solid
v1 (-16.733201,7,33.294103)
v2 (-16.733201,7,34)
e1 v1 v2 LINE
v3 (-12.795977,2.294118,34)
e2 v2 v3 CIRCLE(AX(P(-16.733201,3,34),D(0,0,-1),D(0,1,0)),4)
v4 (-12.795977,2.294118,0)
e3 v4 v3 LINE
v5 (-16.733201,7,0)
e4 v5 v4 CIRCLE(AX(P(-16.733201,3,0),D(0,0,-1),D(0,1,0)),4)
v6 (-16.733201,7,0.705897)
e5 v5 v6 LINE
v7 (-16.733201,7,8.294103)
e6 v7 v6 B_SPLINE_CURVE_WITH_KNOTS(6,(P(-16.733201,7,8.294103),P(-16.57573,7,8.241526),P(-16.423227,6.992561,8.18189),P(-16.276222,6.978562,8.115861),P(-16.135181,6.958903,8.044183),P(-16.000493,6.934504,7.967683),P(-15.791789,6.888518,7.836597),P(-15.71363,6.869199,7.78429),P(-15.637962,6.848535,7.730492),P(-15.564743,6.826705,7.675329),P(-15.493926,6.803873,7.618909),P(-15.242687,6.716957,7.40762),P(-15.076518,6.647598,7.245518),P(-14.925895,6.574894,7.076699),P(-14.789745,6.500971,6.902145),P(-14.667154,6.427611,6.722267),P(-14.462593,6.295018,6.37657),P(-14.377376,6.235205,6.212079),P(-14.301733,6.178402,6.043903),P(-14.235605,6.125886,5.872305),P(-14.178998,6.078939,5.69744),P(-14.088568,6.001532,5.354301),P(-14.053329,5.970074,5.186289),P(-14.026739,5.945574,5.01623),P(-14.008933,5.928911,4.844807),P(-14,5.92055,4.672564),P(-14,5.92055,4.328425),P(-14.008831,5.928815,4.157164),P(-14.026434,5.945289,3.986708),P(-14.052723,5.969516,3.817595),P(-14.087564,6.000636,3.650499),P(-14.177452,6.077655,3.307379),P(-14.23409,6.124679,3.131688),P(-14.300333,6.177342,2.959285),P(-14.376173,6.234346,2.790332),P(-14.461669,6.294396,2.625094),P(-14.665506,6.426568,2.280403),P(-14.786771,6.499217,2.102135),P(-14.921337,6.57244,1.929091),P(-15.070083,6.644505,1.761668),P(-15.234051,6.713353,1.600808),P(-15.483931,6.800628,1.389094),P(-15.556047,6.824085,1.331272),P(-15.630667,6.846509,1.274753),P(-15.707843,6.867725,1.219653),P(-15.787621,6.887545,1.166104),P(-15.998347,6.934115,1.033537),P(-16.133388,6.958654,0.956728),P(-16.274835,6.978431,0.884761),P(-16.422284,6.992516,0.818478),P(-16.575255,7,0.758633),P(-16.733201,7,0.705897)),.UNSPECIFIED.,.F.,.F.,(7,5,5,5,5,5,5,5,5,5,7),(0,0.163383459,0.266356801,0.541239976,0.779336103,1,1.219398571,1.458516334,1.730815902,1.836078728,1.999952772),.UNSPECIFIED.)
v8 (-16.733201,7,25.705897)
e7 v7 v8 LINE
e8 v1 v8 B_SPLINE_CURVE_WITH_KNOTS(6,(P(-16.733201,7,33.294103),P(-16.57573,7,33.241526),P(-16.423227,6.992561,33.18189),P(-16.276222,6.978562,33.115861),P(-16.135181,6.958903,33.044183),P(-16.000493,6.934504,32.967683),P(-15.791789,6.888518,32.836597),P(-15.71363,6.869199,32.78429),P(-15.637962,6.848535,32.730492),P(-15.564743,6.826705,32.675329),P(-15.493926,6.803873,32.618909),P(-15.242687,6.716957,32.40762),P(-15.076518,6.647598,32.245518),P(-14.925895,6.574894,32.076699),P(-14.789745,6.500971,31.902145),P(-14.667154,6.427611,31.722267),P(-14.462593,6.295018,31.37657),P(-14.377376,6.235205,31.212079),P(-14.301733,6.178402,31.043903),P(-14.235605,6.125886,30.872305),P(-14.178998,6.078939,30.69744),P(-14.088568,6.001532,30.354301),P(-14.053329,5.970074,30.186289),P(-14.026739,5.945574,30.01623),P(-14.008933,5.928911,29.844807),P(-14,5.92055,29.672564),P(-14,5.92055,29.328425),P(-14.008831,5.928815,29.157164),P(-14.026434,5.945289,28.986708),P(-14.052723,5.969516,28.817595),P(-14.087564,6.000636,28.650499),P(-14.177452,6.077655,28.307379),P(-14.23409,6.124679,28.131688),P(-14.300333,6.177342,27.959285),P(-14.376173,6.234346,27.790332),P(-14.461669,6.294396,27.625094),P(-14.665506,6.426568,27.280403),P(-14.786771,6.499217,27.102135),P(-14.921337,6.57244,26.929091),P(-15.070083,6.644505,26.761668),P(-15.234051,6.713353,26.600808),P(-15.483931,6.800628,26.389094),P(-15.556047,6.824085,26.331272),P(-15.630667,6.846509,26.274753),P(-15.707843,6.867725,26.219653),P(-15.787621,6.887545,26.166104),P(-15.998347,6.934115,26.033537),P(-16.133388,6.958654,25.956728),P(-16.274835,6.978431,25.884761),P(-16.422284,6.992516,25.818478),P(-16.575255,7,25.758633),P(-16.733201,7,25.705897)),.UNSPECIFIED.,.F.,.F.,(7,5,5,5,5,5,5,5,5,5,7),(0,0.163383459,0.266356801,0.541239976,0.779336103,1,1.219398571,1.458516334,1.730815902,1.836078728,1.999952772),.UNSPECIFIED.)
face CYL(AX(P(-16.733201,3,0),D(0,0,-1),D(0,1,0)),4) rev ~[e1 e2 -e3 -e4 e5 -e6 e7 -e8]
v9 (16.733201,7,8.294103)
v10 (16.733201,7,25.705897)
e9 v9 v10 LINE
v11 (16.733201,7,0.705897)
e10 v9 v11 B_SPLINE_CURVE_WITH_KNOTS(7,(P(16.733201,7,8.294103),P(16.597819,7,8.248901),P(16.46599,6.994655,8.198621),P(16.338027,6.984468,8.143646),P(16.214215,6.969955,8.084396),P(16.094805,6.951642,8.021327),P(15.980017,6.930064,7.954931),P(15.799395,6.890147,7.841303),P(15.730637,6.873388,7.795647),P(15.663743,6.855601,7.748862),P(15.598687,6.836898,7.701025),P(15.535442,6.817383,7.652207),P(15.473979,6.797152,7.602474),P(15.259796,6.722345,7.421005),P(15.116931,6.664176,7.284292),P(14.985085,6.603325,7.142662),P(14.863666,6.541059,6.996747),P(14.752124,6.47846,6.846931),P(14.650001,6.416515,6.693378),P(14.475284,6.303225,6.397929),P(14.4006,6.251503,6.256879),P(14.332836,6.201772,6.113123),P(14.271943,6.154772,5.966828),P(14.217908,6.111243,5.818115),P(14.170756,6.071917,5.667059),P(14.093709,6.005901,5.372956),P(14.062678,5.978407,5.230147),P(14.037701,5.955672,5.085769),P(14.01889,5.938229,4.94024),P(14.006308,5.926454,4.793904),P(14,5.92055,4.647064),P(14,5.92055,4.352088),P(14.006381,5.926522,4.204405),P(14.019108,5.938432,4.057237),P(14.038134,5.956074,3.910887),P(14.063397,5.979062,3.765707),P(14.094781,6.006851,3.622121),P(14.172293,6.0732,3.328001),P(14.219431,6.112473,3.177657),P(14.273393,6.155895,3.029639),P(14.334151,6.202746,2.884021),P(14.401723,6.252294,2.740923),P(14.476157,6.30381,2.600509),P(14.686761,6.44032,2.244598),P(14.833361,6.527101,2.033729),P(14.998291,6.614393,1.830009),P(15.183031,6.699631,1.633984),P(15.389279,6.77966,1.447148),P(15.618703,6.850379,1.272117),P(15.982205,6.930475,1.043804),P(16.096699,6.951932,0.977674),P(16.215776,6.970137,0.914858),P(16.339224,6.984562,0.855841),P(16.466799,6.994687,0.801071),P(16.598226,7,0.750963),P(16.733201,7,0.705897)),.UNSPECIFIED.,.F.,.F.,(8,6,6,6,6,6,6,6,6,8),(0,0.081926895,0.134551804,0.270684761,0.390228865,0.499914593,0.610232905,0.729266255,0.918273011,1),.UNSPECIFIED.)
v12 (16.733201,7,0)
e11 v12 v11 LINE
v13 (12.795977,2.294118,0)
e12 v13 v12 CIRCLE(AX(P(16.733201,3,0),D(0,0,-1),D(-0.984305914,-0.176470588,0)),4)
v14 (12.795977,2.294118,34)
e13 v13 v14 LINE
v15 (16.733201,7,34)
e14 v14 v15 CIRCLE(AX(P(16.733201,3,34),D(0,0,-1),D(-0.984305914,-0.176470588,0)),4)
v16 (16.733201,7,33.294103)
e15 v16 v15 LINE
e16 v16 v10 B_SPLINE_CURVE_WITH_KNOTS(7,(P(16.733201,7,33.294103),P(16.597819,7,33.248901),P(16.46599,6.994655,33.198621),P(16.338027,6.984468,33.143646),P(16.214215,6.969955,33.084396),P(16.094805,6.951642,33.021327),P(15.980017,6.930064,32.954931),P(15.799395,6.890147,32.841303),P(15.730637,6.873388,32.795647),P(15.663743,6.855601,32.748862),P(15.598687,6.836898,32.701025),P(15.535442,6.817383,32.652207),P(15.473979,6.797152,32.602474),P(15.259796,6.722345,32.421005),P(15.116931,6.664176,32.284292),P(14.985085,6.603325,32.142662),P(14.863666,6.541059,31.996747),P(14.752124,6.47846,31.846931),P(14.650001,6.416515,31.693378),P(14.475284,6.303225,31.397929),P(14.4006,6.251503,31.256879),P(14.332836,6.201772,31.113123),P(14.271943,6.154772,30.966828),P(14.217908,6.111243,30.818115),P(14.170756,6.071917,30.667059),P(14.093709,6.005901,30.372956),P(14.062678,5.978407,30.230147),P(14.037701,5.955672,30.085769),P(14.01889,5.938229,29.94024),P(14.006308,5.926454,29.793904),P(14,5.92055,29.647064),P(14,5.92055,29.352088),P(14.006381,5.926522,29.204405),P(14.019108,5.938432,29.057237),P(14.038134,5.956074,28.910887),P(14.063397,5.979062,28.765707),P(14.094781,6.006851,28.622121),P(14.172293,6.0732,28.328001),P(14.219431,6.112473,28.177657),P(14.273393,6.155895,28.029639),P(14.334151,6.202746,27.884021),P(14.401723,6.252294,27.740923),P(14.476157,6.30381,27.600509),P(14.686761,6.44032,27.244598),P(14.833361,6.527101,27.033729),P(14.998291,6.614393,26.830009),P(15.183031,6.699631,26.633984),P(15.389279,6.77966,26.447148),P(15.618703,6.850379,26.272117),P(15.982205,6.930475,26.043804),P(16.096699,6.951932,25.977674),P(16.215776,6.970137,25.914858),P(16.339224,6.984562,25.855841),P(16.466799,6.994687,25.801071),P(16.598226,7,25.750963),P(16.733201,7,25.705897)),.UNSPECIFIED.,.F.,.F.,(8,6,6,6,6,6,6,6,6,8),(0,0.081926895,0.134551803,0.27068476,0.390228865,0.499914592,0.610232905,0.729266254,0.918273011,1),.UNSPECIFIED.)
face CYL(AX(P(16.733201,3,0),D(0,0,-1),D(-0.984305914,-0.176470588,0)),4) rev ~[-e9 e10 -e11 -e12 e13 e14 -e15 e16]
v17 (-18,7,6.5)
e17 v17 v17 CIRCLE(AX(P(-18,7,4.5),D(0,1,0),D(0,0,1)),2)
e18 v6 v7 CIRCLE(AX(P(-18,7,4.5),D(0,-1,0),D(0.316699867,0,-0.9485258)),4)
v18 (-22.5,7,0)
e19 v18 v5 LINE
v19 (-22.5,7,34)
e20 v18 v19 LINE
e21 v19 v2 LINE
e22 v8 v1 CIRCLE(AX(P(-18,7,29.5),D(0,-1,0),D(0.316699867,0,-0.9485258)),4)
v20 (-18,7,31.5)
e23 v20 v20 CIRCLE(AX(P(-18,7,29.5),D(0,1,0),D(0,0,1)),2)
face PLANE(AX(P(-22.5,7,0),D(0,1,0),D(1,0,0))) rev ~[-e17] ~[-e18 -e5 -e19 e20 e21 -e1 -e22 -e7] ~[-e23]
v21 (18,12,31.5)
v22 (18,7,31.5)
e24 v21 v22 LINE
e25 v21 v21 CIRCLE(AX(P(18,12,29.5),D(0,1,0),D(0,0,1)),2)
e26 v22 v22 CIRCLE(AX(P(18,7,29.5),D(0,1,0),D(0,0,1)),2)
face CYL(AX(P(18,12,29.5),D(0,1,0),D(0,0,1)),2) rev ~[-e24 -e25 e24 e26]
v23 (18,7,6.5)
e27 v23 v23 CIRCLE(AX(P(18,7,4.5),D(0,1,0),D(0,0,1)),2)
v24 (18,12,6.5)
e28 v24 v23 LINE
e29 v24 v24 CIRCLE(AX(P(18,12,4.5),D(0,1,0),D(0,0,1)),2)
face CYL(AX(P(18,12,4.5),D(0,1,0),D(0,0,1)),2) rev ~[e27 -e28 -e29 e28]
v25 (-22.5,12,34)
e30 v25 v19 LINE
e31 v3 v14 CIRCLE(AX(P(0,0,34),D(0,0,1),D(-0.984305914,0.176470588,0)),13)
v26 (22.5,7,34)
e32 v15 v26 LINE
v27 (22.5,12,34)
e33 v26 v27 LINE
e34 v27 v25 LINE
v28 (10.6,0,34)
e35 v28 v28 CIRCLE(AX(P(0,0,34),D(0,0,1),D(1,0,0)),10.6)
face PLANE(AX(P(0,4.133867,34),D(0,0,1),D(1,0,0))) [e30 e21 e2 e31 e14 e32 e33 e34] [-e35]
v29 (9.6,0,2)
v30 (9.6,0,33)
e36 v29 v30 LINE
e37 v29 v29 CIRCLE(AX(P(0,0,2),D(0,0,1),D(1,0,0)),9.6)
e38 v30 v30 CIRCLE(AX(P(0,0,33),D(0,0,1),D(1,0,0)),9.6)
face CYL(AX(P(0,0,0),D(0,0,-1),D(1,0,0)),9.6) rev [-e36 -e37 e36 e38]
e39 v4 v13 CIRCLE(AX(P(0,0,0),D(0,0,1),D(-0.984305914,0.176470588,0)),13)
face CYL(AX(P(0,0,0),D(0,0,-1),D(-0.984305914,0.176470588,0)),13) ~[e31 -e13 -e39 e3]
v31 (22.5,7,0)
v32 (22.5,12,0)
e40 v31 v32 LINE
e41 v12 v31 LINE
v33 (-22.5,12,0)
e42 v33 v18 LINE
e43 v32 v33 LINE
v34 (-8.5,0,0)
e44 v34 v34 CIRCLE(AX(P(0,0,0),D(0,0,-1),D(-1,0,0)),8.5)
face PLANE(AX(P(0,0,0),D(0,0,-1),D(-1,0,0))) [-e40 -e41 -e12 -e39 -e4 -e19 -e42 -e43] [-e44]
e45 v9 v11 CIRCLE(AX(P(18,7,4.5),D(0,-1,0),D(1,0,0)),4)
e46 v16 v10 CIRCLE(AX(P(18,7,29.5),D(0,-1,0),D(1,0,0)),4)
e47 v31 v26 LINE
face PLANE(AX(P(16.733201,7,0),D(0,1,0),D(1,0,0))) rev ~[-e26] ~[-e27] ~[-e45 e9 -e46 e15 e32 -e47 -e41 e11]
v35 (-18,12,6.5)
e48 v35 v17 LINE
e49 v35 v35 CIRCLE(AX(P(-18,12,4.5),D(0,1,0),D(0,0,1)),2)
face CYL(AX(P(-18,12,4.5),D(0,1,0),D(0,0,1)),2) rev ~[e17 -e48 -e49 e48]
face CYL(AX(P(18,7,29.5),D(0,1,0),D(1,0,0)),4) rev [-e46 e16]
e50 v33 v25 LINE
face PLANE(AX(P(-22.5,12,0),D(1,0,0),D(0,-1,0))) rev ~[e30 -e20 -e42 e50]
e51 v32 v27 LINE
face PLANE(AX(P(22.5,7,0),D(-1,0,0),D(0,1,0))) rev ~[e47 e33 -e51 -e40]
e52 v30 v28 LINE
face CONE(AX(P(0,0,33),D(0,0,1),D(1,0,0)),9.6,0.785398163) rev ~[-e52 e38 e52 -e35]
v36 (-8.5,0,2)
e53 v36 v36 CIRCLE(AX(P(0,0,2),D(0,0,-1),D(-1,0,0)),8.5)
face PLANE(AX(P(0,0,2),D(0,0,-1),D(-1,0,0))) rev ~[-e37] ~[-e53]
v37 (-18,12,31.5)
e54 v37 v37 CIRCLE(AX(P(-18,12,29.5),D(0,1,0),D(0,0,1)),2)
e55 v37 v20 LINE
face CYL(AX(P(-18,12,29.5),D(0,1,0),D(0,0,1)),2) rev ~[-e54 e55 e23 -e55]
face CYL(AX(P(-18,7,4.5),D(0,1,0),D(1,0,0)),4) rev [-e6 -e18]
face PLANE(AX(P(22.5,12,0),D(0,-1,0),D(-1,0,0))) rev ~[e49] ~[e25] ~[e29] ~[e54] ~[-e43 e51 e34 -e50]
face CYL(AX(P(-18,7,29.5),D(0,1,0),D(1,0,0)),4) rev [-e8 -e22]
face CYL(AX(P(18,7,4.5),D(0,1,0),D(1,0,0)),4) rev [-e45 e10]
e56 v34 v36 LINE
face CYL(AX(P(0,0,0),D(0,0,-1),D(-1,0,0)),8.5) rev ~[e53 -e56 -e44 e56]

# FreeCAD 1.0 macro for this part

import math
import FreeCAD as App
import Part
import Sketcher
from FreeCAD import Vector


def edges_at(feature, points):
    """Names of the edges that pass closest to the given points."""
    edges = feature.Shape.Edges
    near = lambda p: min(range(len(edges)), key=lambda i: edges[i].distToShape(Part.Vertex(*p))[0])
    return sorted({f"Edge{near(p) + 1}" for p in points})

doc = App.newDocument("Part")
params = doc.addObject("Spreadsheet::Sheet", "Params")
for row, (alias, value) in enumerate([
    ("sketch1_radius", "4 mm"),
    ("sketch1_radius2", "13 mm"),
    ("sketch1_diameter", "19.2 mm"),
    ("sketch1_width", "45 mm"),
    ("sketch1_height", "5 mm"),
    ("pad1_length", "34 mm"),
    ("sketch2_diameter", "4 mm"),
    ("pocket1_length", "34 mm"),
    ("sketch3_diameter", "8 mm"),
    ("pocket2_length", "34 mm"),
    ("sketch4_diameter", "17 mm"),
    ("sketch4_diameter2", "19.2 mm"),
    ("pad2_length", "2 mm"),
    ("chamfer_size", "1 mm"),
], start=1):
    params.set(f"A{row}", alias)
    params.set(f"B{row}", "=" + value)
    params.setAlias(f"B{row}", alias)

body = doc.addObject("PartDesign::Body", "Body")

sketch1 = doc.addObject("Sketcher::SketchObject", "Sketch")
body.addObject(sketch1)
sketch1.AttachmentSupport = (doc.XY_Plane, [""])
sketch1.MapMode = "FlatFace"
sketch1.addGeometry([
    Part.LineSegment(Vector(16.7, 7, 0), Vector(22.5, 7, 0)),
    Part.LineSegment(Vector(22.5, 7, 0), Vector(22.5, 12, 0)),
    Part.LineSegment(Vector(22.5, 12, 0), Vector(-22.5, 12, 0)),
    Part.LineSegment(Vector(-22.5, 12, 0), Vector(-22.5, 7, 0)),
    Part.LineSegment(Vector(-22.5, 7, 0), Vector(-16.7, 7, 0)),
    Part.ArcOfCircle(Part.Circle(Vector(-16.7, 3, 0), Vector(0, 0, 1), 4), math.radians(-10), math.radians(90)),
    Part.ArcOfCircle(Part.Circle(Vector(0, 0, 0), Vector(0, 0, 1), 13), math.radians(170), math.radians(370)),
    Part.ArcOfCircle(Part.Circle(Vector(16.7, 3, 0), Vector(0, 0, 1), 4), math.radians(90), math.radians(190)),
    Part.Circle(Vector(0, 0, 0), Vector(0, 0, 1), 9.6),
], False)
sketch1.addConstraint([
    Sketcher.Constraint("Coincident", 0, 2, 1, 1),
    Sketcher.Constraint("Coincident", 1, 2, 2, 1),
    Sketcher.Constraint("Coincident", 2, 2, 3, 1),
    Sketcher.Constraint("Coincident", 3, 2, 4, 1),
    Sketcher.Constraint("Tangent", 4, 2, 5, 2),
    Sketcher.Constraint("Tangent", 5, 1, 6, 1),
    Sketcher.Constraint("Tangent", 6, 2, 7, 2),
    Sketcher.Constraint("Tangent", 7, 1, 0, 1),
    Sketcher.Constraint("Horizontal", 0),
    Sketcher.Constraint("Vertical", 1),
    Sketcher.Constraint("Horizontal", 2),
    Sketcher.Constraint("Vertical", 3),
    Sketcher.Constraint("Horizontal", 4),
    Sketcher.Constraint("Coincident", 6, 3, -1, 1),
    Sketcher.Constraint("Coincident", 8, 3, -1, 1),
    Sketcher.Constraint("Equal", 5, 7),
    Sketcher.Constraint("Symmetric", 0, 2, 3, 2, -2),
    Sketcher.Constraint("Radius", 5, 4.0),
    Sketcher.Constraint("Radius", 6, 13.0),
    Sketcher.Constraint("Diameter", 8, 19.2),
    Sketcher.Constraint("DistanceX", 2, 2, 2, 1, 45.0),
    Sketcher.Constraint("DistanceY", 1, 1, 1, 2, 5.0),
    Sketcher.Constraint("DistanceY", -1, 1, 5, 3, 3.0),
])
sketch1.setExpression("Constraints[17]", "Params.sketch1_radius")
sketch1.setExpression("Constraints[18]", "Params.sketch1_radius2")
sketch1.setExpression("Constraints[19]", "Params.sketch1_diameter")
sketch1.setExpression("Constraints[20]", "Params.sketch1_width")
sketch1.setExpression("Constraints[21]", "Params.sketch1_height")
pad1 = doc.addObject("PartDesign::Pad", "Pad")
body.addObject(pad1)
pad1.Profile = sketch1
pad1.setExpression("Length", "Params.pad1_length")

sketch2 = doc.addObject("Sketcher::SketchObject", "Sketch001")
body.addObject(sketch2)
sketch2.AttachmentSupport = (doc.XZ_Plane, [""])
sketch2.MapMode = "FlatFace"
sketch2.AttachmentOffset = App.Placement(Vector(0, 0, -12), App.Rotation())
sketch2.addGeometry([
    Part.Circle(Vector(-18, 29.5, 0), Vector(0, 0, 1), 2),
    Part.Circle(Vector(18, 29.5, 0), Vector(0, 0, 1), 2),
    Part.Circle(Vector(18, 4.5, 0), Vector(0, 0, 1), 2),
    Part.Circle(Vector(-18, 4.5, 0), Vector(0, 0, 1), 2),
], False)
sketch2.addConstraint([
    Sketcher.Constraint("Equal", 0, 1),
    Sketcher.Constraint("Equal", 1, 2),
    Sketcher.Constraint("Equal", 2, 3),
    Sketcher.Constraint("Symmetric", 0, 3, 1, 3, -2),
    Sketcher.Constraint("Symmetric", 2, 3, 3, 3, -2),
    Sketcher.Constraint("Vertical", 1, 3, 2, 3),
    Sketcher.Constraint("Diameter", 0, 4.0),
    Sketcher.Constraint("DistanceX", 0, 3, -1, 1, 18.0),
    Sketcher.Constraint("DistanceY", 2, 3, 1, 3, 25.0),
    Sketcher.Constraint("DistanceY", -1, 1, 0, 3, 29.5),
])
sketch2.setExpression("Constraints[6]", "Params.sketch2_diameter")
pocket1 = doc.addObject("PartDesign::Pocket", "Pocket")
body.addObject(pocket1)
pocket1.Profile = sketch2
pocket1.setExpression("Length", "Params.pocket1_length")
pocket1.Reversed = True

sketch3 = doc.addObject("Sketcher::SketchObject", "Sketch002")
body.addObject(sketch3)
sketch3.AttachmentSupport = (doc.XZ_Plane, [""])
sketch3.MapMode = "FlatFace"
sketch3.AttachmentOffset = App.Placement(Vector(0, 0, -7), App.Rotation())
sketch3.addGeometry([
    Part.Circle(Vector(-18, 29.5, 0), Vector(0, 0, 1), 4),
    Part.Circle(Vector(-18, 4.5, 0), Vector(0, 0, 1), 4),
    Part.Circle(Vector(18, 4.5, 0), Vector(0, 0, 1), 4),
    Part.Circle(Vector(18, 29.5, 0), Vector(0, 0, 1), 4),
], False)
sketch3.addConstraint([
    Sketcher.Constraint("Equal", 0, 1),
    Sketcher.Constraint("Equal", 1, 2),
    Sketcher.Constraint("Equal", 2, 3),
    Sketcher.Constraint("Symmetric", 1, 3, 2, 3, -2),
    Sketcher.Constraint("Symmetric", 0, 3, 3, 3, -2),
    Sketcher.Constraint("Vertical", 0, 3, 1, 3),
    Sketcher.Constraint("Diameter", 0, 8.0),
    Sketcher.Constraint("DistanceX", 0, 3, -1, 1, 18.0),
    Sketcher.Constraint("DistanceY", 1, 3, 0, 3, 25.0),
    Sketcher.Constraint("DistanceY", -1, 1, 0, 3, 29.5),
])
sketch3.setExpression("Constraints[6]", "Params.sketch3_diameter")
pocket2 = doc.addObject("PartDesign::Pocket", "Pocket001")
body.addObject(pocket2)
pocket2.Profile = sketch3
pocket2.setExpression("Length", "Params.pocket2_length")
pocket2.Reversed = True

sketch4 = doc.addObject("Sketcher::SketchObject", "Sketch003")
body.addObject(sketch4)
sketch4.AttachmentSupport = (doc.XY_Plane, [""])
sketch4.MapMode = "FlatFace"
sketch4.addGeometry([
    Part.Circle(Vector(0, 0, 0), Vector(0, 0, 1), 10),
    Part.Circle(Vector(0, 0, 0), Vector(0, 0, 1), 8),
], False)
sketch4.addConstraint([
    Sketcher.Constraint("Coincident", 0, 3, -1, 1),
    Sketcher.Constraint("Coincident", 1, 3, -1, 1),
    Sketcher.Constraint("Diameter", 1, 17.0),
    Sketcher.Constraint("Diameter", 0, 19.2),
])
sketch4.setExpression("Constraints[2]", "Params.sketch4_diameter")
sketch4.setExpression("Constraints[3]", "Params.sketch4_diameter2")
pad2 = doc.addObject("PartDesign::Pad", "Pad001")
body.addObject(pad2)
pad2.Profile = sketch4
pad2.setExpression("Length", "Params.pad2_length")
doc.recompute()

chamfer = doc.addObject("PartDesign::Chamfer", "Chamfer")
body.addObject(chamfer)
chamfer.Base = (pad2, edges_at(pad2, [(-9.6, 0, 34)]))
chamfer.setExpression("Size", "Params.chamfer_size")

doc.recompute()
